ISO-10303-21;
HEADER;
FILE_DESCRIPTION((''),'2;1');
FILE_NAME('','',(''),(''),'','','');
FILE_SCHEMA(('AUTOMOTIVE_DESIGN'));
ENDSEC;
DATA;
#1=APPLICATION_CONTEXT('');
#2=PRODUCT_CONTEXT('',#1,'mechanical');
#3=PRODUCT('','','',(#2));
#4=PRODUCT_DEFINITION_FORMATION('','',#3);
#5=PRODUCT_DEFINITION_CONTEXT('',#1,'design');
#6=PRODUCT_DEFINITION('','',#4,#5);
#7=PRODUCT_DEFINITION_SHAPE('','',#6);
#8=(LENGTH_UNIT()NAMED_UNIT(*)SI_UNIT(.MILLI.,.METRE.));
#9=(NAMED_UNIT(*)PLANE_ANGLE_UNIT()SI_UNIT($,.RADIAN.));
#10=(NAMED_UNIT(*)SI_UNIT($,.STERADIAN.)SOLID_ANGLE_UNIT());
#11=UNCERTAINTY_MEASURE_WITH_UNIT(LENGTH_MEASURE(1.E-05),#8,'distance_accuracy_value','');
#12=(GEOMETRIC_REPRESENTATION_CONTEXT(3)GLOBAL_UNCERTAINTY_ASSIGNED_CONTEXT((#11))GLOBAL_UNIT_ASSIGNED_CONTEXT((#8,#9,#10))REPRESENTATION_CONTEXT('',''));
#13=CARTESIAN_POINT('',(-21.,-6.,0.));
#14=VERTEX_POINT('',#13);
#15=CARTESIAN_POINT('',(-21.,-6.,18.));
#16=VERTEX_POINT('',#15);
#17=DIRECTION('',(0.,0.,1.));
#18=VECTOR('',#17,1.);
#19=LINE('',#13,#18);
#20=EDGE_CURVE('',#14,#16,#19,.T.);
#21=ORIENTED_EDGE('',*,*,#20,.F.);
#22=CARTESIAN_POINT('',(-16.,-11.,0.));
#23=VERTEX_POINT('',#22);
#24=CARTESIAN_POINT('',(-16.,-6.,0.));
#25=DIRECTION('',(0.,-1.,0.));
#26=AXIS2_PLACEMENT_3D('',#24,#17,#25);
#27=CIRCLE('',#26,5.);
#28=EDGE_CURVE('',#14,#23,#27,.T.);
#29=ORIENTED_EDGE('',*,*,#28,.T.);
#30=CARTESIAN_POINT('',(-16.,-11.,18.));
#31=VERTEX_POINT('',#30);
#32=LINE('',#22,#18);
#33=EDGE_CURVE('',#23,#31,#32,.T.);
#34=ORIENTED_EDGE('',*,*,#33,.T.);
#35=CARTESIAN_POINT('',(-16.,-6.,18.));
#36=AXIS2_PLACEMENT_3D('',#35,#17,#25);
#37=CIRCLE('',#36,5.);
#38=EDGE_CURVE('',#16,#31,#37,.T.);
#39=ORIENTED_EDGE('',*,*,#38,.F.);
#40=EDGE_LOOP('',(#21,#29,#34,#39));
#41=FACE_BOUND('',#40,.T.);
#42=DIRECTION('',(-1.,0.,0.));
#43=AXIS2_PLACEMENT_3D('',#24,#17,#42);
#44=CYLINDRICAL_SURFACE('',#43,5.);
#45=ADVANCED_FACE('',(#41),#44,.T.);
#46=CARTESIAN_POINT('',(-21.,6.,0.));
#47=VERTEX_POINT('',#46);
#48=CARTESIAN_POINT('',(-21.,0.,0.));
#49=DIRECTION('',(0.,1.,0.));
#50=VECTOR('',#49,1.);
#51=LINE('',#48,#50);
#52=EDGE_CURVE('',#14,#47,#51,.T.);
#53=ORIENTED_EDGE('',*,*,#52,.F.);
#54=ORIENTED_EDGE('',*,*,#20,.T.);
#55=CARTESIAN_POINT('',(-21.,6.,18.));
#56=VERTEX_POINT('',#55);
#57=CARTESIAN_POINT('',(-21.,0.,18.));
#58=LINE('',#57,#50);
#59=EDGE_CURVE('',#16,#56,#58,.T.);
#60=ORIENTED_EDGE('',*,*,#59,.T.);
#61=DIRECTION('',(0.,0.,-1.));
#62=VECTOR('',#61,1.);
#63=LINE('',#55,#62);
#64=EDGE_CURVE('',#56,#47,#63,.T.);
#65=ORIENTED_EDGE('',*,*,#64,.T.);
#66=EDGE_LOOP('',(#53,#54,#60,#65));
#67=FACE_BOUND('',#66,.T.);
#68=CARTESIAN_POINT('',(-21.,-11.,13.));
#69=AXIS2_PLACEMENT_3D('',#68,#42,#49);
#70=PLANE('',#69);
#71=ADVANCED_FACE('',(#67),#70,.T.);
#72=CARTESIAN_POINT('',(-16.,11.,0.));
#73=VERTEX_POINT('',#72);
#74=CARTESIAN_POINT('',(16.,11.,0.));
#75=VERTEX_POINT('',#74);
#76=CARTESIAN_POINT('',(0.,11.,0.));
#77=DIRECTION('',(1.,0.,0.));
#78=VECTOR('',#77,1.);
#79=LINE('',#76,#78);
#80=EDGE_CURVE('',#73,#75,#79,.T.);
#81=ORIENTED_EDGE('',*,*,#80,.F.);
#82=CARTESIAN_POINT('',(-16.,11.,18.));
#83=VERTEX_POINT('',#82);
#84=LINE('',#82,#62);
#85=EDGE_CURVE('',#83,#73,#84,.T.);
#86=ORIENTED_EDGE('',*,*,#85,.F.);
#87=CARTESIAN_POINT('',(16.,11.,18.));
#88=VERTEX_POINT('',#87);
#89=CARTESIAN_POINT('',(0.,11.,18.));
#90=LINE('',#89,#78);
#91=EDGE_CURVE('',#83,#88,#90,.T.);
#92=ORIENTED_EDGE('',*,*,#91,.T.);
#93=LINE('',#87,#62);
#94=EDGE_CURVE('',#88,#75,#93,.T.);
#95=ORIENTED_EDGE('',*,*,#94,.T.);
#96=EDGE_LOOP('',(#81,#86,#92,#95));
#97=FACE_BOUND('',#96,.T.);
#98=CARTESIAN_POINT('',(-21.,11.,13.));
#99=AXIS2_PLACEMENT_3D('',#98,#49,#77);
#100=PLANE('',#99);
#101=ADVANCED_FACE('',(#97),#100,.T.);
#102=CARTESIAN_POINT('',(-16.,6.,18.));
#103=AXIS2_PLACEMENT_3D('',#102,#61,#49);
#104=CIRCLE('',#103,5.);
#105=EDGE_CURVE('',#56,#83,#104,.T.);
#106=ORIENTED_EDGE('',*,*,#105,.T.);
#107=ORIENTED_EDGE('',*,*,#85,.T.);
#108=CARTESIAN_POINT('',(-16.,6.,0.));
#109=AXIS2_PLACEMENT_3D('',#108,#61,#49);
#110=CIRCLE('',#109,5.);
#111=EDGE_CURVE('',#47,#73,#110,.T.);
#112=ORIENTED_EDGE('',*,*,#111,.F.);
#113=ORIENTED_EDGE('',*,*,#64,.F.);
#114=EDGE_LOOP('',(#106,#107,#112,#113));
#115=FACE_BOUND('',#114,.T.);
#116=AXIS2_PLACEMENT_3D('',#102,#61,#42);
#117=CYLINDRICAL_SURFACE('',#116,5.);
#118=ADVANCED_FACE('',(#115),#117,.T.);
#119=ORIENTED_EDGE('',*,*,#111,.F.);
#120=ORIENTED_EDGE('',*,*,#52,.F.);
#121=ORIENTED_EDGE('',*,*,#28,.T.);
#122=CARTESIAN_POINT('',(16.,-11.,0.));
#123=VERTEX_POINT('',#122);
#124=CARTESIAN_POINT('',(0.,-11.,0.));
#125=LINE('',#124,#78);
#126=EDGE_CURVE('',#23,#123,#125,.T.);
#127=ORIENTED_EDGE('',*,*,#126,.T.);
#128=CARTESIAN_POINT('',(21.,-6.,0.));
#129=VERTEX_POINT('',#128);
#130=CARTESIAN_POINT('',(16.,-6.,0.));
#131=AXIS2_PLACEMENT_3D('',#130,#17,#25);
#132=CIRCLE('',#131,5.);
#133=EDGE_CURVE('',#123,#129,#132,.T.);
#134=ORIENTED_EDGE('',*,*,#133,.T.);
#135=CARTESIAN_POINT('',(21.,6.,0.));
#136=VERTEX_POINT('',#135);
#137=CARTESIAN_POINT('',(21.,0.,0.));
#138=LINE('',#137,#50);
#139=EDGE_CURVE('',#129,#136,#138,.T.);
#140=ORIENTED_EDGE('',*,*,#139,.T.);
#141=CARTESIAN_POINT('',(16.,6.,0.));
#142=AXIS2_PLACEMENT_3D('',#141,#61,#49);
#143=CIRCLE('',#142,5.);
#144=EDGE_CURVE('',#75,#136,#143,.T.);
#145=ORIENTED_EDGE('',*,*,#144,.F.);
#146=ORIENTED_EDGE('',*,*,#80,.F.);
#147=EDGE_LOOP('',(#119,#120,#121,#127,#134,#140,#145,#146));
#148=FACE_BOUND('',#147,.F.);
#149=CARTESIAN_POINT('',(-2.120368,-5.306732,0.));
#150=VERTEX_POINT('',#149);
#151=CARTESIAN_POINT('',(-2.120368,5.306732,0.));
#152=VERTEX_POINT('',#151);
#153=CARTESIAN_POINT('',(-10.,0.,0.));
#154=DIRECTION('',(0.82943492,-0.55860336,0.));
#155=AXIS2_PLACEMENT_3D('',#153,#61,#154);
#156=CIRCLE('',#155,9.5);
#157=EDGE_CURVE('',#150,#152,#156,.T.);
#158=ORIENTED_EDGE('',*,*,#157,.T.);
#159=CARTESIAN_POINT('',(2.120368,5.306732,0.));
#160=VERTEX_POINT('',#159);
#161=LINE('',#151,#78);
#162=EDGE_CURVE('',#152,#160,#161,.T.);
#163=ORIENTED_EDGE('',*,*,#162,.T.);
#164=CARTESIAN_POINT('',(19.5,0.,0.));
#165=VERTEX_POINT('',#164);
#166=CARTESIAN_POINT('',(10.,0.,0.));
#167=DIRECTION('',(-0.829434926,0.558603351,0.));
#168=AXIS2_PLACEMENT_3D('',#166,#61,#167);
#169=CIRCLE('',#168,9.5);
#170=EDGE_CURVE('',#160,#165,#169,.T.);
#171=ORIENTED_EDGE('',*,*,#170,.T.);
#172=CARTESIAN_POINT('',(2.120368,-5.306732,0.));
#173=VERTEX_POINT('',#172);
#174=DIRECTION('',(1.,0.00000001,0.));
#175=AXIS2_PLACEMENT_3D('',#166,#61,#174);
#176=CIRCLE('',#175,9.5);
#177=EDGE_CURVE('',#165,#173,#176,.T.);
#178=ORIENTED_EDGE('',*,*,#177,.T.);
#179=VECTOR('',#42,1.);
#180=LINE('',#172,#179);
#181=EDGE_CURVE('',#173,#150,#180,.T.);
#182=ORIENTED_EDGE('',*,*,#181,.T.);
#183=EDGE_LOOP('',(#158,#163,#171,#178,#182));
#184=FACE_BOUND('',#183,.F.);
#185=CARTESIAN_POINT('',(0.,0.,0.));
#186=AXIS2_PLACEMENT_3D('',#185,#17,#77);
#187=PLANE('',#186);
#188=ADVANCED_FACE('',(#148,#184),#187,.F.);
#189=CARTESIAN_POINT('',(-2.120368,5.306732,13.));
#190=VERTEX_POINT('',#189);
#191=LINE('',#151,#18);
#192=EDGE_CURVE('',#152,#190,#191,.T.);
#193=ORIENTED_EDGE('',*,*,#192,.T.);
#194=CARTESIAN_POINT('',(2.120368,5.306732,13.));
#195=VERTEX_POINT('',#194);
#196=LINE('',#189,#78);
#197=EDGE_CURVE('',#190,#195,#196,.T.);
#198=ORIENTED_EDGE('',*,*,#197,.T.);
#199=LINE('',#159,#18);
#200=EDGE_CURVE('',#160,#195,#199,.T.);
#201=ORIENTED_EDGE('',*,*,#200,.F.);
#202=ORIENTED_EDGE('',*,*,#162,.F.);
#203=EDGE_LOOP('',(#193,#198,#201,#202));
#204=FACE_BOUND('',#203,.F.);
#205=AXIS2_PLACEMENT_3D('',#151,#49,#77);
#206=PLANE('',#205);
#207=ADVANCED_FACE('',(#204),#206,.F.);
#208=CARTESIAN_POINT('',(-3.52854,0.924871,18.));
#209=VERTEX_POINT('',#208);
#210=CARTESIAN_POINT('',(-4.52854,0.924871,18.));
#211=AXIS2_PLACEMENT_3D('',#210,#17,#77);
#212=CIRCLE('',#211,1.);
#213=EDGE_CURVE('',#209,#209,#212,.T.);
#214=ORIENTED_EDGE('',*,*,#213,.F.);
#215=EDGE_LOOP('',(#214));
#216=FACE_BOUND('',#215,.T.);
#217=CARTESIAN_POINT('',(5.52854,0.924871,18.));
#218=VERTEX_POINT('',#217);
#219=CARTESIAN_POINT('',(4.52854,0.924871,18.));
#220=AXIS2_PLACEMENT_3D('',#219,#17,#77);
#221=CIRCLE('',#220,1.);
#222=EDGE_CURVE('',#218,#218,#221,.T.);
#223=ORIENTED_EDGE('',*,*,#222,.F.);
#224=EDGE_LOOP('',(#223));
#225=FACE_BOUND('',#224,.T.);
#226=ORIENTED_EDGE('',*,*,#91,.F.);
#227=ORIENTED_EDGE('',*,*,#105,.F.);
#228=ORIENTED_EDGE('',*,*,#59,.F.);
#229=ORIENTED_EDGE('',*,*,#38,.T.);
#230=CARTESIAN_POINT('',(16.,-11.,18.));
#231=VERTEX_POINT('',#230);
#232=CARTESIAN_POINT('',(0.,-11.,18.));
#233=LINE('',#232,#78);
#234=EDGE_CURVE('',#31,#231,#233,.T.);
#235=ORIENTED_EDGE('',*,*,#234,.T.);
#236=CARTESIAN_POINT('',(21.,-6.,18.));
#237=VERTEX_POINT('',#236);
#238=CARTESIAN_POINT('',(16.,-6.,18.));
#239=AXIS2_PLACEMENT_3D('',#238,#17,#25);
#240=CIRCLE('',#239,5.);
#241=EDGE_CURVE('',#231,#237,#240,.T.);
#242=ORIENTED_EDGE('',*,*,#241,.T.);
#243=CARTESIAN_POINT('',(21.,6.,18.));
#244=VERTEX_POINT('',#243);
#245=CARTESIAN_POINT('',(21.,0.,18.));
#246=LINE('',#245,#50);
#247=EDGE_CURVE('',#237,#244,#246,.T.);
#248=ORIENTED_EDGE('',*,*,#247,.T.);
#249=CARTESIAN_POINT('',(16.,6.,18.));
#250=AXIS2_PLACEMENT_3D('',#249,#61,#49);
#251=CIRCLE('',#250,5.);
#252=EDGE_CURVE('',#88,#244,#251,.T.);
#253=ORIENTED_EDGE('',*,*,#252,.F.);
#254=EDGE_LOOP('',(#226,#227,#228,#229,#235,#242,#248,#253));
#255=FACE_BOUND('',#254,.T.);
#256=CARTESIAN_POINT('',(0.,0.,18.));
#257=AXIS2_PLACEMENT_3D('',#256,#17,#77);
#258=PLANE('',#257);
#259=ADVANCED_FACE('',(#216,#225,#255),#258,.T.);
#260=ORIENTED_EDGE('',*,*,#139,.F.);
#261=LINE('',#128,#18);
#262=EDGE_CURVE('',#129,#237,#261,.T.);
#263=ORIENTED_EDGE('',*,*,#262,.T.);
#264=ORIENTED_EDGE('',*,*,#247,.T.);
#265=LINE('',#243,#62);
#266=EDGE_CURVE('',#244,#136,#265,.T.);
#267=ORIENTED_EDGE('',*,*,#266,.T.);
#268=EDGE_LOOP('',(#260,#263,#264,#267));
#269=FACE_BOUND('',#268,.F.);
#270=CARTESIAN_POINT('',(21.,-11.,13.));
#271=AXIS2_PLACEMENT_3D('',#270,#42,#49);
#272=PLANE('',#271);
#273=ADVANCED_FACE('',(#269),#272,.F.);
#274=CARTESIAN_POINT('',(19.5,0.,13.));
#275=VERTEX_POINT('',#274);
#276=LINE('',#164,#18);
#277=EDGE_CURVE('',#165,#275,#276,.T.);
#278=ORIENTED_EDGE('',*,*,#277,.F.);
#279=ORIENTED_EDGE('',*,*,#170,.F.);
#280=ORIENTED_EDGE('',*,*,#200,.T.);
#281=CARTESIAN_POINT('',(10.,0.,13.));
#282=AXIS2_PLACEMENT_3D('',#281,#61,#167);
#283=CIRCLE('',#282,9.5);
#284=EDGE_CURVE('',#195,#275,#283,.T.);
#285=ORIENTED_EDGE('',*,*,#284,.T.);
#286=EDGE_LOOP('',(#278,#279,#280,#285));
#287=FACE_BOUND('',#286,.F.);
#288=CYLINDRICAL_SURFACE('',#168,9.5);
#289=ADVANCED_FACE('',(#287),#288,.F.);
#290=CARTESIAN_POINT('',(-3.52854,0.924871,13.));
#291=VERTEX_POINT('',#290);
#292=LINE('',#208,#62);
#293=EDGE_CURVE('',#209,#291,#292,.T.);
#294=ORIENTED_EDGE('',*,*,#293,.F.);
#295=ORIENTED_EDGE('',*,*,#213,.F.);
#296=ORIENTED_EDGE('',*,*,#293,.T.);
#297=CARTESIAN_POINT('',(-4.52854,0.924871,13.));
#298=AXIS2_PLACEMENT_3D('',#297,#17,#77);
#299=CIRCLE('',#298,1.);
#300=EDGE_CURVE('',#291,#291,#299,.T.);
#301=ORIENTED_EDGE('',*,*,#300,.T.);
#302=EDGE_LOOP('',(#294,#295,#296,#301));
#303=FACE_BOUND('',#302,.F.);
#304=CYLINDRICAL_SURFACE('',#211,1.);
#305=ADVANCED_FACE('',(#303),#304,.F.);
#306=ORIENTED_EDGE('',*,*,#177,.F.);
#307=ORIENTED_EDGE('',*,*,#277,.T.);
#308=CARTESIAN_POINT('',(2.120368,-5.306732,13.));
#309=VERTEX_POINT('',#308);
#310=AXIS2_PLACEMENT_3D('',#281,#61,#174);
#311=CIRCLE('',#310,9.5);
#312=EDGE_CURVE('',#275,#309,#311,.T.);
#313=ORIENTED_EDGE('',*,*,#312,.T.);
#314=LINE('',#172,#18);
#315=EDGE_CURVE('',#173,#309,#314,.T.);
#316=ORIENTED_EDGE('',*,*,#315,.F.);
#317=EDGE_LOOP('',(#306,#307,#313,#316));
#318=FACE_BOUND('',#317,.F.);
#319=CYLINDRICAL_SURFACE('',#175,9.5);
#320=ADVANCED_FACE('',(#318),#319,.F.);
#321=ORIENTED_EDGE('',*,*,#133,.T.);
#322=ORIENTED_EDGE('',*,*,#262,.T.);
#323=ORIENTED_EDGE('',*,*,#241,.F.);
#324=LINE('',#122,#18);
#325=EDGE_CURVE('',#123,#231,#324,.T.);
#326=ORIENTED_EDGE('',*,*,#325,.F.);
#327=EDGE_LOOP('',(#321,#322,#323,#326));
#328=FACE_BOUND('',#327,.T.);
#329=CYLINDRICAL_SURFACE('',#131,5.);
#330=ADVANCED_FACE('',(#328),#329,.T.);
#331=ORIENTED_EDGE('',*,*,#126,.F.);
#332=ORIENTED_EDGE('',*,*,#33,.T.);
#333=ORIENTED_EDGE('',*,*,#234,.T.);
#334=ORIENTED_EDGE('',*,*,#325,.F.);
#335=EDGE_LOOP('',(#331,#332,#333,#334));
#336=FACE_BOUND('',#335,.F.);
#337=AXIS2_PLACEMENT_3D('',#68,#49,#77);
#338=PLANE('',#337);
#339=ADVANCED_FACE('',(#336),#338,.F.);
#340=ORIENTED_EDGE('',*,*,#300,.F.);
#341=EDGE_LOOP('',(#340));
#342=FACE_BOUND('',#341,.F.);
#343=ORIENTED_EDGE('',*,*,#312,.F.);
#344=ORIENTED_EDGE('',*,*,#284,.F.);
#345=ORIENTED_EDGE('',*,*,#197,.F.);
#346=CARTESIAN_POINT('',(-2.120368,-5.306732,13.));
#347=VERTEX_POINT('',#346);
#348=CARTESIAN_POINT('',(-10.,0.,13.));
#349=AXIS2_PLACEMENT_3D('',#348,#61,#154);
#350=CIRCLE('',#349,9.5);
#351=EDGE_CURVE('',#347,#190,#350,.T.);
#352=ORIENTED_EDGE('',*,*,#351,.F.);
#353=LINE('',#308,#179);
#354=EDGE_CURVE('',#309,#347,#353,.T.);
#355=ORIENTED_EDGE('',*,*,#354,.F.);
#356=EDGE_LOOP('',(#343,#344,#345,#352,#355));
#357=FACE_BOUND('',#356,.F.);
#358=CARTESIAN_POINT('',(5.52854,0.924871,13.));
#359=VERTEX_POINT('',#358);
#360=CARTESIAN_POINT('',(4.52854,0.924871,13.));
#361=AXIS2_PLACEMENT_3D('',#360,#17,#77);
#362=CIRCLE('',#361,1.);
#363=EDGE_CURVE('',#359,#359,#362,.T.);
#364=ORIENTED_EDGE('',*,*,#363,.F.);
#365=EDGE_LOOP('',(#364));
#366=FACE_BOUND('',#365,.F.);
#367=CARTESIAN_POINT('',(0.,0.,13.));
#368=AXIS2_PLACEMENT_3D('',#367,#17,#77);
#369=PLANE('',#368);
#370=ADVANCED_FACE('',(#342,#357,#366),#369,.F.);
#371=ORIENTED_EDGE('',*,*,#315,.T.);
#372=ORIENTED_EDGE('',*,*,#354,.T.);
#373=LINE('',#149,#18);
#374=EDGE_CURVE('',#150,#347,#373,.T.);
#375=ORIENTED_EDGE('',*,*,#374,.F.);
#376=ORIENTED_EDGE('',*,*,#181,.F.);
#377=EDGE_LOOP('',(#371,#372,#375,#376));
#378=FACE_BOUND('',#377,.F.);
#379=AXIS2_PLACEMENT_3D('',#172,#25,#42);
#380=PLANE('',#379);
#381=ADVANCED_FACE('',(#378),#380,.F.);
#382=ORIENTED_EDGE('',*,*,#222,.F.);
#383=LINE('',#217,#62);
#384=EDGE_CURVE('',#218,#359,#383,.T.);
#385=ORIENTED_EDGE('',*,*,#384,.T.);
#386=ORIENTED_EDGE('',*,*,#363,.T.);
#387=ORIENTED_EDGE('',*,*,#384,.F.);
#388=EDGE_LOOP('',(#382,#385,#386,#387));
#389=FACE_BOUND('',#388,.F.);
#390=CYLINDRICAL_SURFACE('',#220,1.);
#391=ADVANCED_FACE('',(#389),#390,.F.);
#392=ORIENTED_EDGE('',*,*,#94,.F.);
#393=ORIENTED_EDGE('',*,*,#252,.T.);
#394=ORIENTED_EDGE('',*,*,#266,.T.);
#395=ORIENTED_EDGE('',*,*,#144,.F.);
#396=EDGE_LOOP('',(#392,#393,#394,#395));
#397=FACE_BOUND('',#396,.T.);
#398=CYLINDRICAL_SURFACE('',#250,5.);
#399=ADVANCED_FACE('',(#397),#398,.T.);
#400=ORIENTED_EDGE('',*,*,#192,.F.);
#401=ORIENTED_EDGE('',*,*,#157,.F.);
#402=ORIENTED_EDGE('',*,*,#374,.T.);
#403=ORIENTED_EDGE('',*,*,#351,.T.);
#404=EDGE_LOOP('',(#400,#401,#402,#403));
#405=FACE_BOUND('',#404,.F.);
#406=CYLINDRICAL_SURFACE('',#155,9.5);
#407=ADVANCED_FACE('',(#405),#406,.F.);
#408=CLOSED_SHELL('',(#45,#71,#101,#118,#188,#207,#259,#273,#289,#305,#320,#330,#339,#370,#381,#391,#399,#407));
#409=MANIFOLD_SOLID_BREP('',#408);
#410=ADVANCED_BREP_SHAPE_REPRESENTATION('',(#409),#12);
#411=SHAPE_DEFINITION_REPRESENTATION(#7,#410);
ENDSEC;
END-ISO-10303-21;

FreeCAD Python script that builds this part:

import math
import FreeCAD as App
import Part
import Sketcher

V = App.Vector
Q = App.Units.Quantity


def edges_at(feature, points):
    """Names of the edges that pass closest to the given points."""
    edges = feature.Shape.Edges
    near = lambda p: min(range(len(edges)), key=lambda i: edges[i].distToShape(Part.Vertex(*p))[0])
    return sorted({f"Edge{near(p) + 1}" for p in points})

doc = App.newDocument("Part")
params = doc.addObject("Spreadsheet::Sheet", "Params")
for row, (alias, value) in enumerate([
    ("sketch1_radius", "9.5 mm"),
    ("sketch1_width", "42 mm"),
    ("sketch1_height", "22 mm"),
    ("pad1_length", "13 mm"),
    ("sketch2_width", "42 mm"),
    ("sketch2_height", "22 mm"),
    ("pad2_length", "5 mm"),
    ("sketch3_diameter", "2 mm"),
    ("pocket1_length", "6 mm"),
    ("fillet_radius", "5 mm"),
], start=1):
    params.set(f"A{row}", alias)
    params.set(f"B{row}", "=" + value)
    params.setAlias(f"B{row}", alias)

body = doc.addObject("PartDesign::Body", "Body")

# Sketch on XY plane
sketch1 = doc.addObject("Sketcher::SketchObject", "Sketch")
body.addObject(sketch1)
sketch1.AttachmentSupport = (doc.XY_Plane, [""])
sketch1.MapMode = "FlatFace"
sketch1.addGeometry(Part.LineSegment(V(-21, 11, 0), V(-21, -11, 0)), False)
sketch1.addGeometry(Part.LineSegment(V(-21, -11, 0), V(21, -11, 0)), False)
sketch1.addGeometry(Part.LineSegment(V(21, -11, 0), V(21, 11, 0)), False)
sketch1.addGeometry(Part.LineSegment(V(21, 11, 0), V(-21, 11, 0)), False)
sketch1.addGeometry(Part.LineSegment(V(2.1, -5.3, 0), V(-2.1, -5.3, 0)), False)
sketch1.addGeometry(Part.ArcOfCircle(Part.Circle(V(-10, 0, 0), V(0, 0, 1), 9.5), math.radians(34), math.radians(326)), False)
sketch1.addGeometry(Part.LineSegment(V(-2.1, 5.3, 0), V(2.1, 5.3, 0)), False)
sketch1.addGeometry(Part.ArcOfCircle(Part.Circle(V(10, 0, 0), V(0, 0, 1), 9.5), math.radians(0), math.radians(146)), False)
sketch1.addGeometry(Part.ArcOfCircle(Part.Circle(V(10, 0, 0), V(0, 0, 1), 9.5), math.radians(-146), math.radians(0)), False)
sketch1.addConstraint(Sketcher.Constraint("Coincident", 0, 2, 1, 1))
sketch1.addConstraint(Sketcher.Constraint("Coincident", 1, 2, 2, 1))
sketch1.addConstraint(Sketcher.Constraint("Coincident", 2, 2, 3, 1))
sketch1.addConstraint(Sketcher.Constraint("Coincident", 3, 2, 0, 1))
sketch1.addConstraint(Sketcher.Constraint("Coincident", 4, 2, 5, 2))
sketch1.addConstraint(Sketcher.Constraint("Coincident", 5, 1, 6, 1))
sketch1.addConstraint(Sketcher.Constraint("Coincident", 6, 2, 7, 2))
sketch1.addConstraint(Sketcher.Constraint("Tangent", 7, 1, 8, 2))
sketch1.addConstraint(Sketcher.Constraint("Coincident", 8, 1, 4, 1))
sketch1.addConstraint(Sketcher.Constraint("Vertical", 0))
sketch1.addConstraint(Sketcher.Constraint("Horizontal", 1))
sketch1.addConstraint(Sketcher.Constraint("Vertical", 2))
sketch1.addConstraint(Sketcher.Constraint("Horizontal", 3))
sketch1.addConstraint(Sketcher.Constraint("Horizontal", 4))
sketch1.addConstraint(Sketcher.Constraint("Horizontal", 6))
sketch1.addConstraint(Sketcher.Constraint("Equal", 5, 7))
sketch1.addConstraint(Sketcher.Constraint("Equal", 7, 8))
sketch1.addConstraint(Sketcher.Constraint("Symmetric", 5, 3, 7, 3, -1, 1))
sketch1.addConstraint(Sketcher.Constraint("Symmetric", 0, 2, 2, 2, -1, 1))
sketch1.addConstraint(Sketcher.Constraint("Symmetric", 4, 2, 5, 1, -1))
sketch1.addConstraint(Sketcher.Constraint("PointOnObject", 7, 1, -1))
sketch1.addConstraint(Sketcher.Constraint("Radius", 5, Q("9.5 mm")))
sketch1.addConstraint(Sketcher.Constraint("DistanceX", 1, 1, 1, 2, Q("42 mm")))
sketch1.addConstraint(Sketcher.Constraint("DistanceY", 0, 2, 0, 1, Q("22 mm")))
sketch1.addConstraint(Sketcher.Constraint("DistanceX", 5, 3, -1, 1, Q("10 mm")))
sketch1.addConstraint(Sketcher.Constraint("DistanceX", 4, 2, 4, 1, Q("4.240736 mm")))
sketch1.setExpression("Constraints[21]", "Params.sketch1_radius")
sketch1.setExpression("Constraints[22]", "Params.sketch1_width")
sketch1.setExpression("Constraints[23]", "Params.sketch1_height")
pad1 = doc.addObject("PartDesign::Pad", "Pad")
body.addObject(pad1)
pad1.Profile = sketch1
pad1.setExpression("Length", "Params.pad1_length")

# Sketch on XY plane
sketch2 = doc.addObject("Sketcher::SketchObject", "Sketch001")
body.addObject(sketch2)
sketch2.AttachmentSupport = (doc.XY_Plane, [""])
sketch2.MapMode = "FlatFace"
sketch2.AttachmentOffset = App.Placement(V(0, 0, 13), App.Rotation())
sketch2.addGeometry(Part.LineSegment(V(-21, 11, 0), V(-21, -11, 0)), False)
sketch2.addGeometry(Part.LineSegment(V(-21, -11, 0), V(21, -11, 0)), False)
sketch2.addGeometry(Part.LineSegment(V(21, -11, 0), V(21, 11, 0)), False)
sketch2.addGeometry(Part.LineSegment(V(21, 11, 0), V(-21, 11, 0)), False)
sketch2.addConstraint(Sketcher.Constraint("Coincident", 0, 2, 1, 1))
sketch2.addConstraint(Sketcher.Constraint("Coincident", 1, 2, 2, 1))
sketch2.addConstraint(Sketcher.Constraint("Coincident", 2, 2, 3, 1))
sketch2.addConstraint(Sketcher.Constraint("Coincident", 3, 2, 0, 1))
sketch2.addConstraint(Sketcher.Constraint("Vertical", 0))
sketch2.addConstraint(Sketcher.Constraint("Horizontal", 1))
sketch2.addConstraint(Sketcher.Constraint("Vertical", 2))
sketch2.addConstraint(Sketcher.Constraint("Horizontal", 3))
sketch2.addConstraint(Sketcher.Constraint("Symmetric", 0, 2, 2, 2, -1, 1))
sketch2.addConstraint(Sketcher.Constraint("DistanceX", 1, 1, 1, 2, Q("42 mm")))
sketch2.addConstraint(Sketcher.Constraint("DistanceY", 0, 2, 0, 1, Q("22 mm")))
sketch2.setExpression("Constraints[9]", "Params.sketch2_width")
sketch2.setExpression("Constraints[10]", "Params.sketch2_height")
pad2 = doc.addObject("PartDesign::Pad", "Pad001")
body.addObject(pad2)
pad2.Profile = sketch2
pad2.setExpression("Length", "Params.pad2_length")

# Sketch on XY plane
sketch3 = doc.addObject("Sketcher::SketchObject", "Sketch002")
body.addObject(sketch3)
sketch3.AttachmentSupport = (doc.XY_Plane, [""])
sketch3.MapMode = "FlatFace"
sketch3.AttachmentOffset = App.Placement(V(0, 0, 18), App.Rotation())
sketch3.addGeometry(Part.Circle(V(-4.5, 0.9, 0), V(0, 0, 1), 1), False)
sketch3.addGeometry(Part.Circle(V(4.5, 0.9, 0), V(0, 0, 1), 1), False)
sketch3.addConstraint(Sketcher.Constraint("Equal", 0, 1))
sketch3.addConstraint(Sketcher.Constraint("Symmetric", 0, 3, 1, 3, -2))
sketch3.addConstraint(Sketcher.Constraint("Diameter", 0, Q("2 mm")))
sketch3.addConstraint(Sketcher.Constraint("DistanceX", 0, 3, -1, 1, Q("4.52854 mm")))
sketch3.addConstraint(Sketcher.Constraint("DistanceY", -1, 1, 0, 3, Q("0.924871 mm")))
sketch3.setExpression("Constraints[2]", "Params.sketch3_diameter")
pocket1 = doc.addObject("PartDesign::Pocket", "Pocket")
body.addObject(pocket1)
pocket1.Profile = sketch3
pocket1.setExpression("Length", "Params.pocket1_length")
doc.recompute()

fillet = doc.addObject("PartDesign::Fillet", "Fillet")
body.addObject(fillet)
fillet.Base = (pocket1, edges_at(pocket1, [
    (-21, -11, 9),
    (21, -11, 9),
    (-21, 11, 9),
    (21, 11, 9),
]))
fillet.setExpression("Radius", "Params.fillet_radius")

doc.recompute()
